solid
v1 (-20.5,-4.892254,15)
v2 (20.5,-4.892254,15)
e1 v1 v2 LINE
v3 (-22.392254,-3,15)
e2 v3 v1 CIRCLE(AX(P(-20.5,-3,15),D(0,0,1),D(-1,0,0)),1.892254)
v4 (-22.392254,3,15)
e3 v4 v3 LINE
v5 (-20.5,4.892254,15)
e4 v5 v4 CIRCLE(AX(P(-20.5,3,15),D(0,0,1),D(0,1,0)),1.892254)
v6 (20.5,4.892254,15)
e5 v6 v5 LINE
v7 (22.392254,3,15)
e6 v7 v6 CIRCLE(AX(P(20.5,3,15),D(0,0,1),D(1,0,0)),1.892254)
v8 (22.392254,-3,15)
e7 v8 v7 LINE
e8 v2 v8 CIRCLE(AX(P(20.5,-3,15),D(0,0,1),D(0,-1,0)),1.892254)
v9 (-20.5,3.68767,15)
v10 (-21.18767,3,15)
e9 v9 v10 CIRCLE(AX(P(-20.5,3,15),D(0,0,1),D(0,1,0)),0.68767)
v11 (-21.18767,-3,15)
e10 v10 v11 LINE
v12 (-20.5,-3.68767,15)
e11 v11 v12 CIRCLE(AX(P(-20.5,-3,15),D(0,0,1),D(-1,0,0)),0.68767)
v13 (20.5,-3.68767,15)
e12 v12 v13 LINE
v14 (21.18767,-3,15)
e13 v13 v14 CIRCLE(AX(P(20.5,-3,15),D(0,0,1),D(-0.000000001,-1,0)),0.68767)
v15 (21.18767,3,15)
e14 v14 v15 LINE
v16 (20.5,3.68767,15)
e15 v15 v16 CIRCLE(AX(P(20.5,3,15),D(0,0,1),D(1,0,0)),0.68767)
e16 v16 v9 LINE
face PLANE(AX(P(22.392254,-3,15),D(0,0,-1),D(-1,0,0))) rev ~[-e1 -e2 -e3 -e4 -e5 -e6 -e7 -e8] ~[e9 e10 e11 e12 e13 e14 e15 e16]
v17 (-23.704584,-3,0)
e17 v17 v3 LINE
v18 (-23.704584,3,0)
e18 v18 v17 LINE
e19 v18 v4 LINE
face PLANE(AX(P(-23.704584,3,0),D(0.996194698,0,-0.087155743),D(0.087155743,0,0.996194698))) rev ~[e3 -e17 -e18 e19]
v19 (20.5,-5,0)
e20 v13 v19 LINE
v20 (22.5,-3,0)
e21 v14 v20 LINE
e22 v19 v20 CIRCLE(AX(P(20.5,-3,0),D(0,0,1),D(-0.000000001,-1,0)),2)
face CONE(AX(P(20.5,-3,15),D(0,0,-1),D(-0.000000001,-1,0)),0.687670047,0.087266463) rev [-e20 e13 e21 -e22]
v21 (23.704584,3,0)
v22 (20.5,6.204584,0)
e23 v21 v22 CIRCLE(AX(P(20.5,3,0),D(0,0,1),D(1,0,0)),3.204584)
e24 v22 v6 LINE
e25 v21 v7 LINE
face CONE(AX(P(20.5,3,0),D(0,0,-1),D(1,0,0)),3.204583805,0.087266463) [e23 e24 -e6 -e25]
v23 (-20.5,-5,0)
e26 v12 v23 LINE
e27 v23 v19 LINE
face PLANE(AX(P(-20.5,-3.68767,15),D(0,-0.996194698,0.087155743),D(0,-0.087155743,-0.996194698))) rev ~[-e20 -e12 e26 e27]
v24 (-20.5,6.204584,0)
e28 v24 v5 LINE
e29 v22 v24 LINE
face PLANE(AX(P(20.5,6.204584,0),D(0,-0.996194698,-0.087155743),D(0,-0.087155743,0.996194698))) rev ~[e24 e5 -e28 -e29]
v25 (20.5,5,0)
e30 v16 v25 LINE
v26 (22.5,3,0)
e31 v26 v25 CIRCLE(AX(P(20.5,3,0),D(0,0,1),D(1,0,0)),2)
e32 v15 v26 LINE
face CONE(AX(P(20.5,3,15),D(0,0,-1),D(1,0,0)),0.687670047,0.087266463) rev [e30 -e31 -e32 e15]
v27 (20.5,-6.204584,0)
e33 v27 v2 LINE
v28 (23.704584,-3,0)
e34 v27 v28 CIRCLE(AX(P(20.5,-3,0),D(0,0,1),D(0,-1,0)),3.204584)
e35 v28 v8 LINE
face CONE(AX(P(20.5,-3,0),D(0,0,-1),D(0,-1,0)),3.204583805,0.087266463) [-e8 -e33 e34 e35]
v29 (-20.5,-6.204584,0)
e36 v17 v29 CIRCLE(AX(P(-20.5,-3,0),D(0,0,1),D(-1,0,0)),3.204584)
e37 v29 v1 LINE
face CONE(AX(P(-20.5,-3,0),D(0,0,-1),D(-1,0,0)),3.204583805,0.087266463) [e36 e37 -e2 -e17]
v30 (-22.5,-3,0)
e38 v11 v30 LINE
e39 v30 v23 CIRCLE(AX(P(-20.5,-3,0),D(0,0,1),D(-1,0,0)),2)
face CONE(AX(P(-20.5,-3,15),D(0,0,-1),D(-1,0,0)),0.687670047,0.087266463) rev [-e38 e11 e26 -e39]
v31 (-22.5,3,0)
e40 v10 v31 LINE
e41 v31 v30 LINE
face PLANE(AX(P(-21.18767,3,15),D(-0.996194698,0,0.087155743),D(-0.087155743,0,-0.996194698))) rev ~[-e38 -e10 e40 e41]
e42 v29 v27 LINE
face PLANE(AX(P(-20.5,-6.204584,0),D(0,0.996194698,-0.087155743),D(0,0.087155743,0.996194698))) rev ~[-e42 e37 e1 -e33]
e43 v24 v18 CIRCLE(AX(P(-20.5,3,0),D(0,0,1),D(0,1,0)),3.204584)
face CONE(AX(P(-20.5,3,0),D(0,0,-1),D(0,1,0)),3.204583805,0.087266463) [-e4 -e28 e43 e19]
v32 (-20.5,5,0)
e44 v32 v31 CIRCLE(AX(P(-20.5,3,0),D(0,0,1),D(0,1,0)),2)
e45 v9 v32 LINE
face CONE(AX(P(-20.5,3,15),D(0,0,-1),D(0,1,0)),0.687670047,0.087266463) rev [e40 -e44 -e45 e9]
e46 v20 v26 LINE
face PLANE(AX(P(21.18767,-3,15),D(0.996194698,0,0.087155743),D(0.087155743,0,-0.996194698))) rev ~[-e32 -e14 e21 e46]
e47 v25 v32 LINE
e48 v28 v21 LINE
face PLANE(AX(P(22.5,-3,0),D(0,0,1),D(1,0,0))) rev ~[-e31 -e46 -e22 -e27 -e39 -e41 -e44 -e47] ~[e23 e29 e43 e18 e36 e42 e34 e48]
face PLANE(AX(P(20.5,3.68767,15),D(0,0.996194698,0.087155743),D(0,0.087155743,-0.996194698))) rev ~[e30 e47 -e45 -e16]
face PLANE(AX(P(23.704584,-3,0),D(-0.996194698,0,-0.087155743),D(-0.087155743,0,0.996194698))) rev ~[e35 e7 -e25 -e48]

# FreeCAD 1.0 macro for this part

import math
import FreeCAD as App
import Part
import Sketcher

V = App.Vector
Q = App.Units.Quantity

doc = App.newDocument("Part")
body = doc.addObject("PartDesign::Body", "Body")

# Sketch on XZ plane
sketch1 = body.newObject("Sketcher::SketchObject", "Sketch")
sketch1.AttachmentSupport = (doc.getObject("XZ_Plane"), [""])
sketch1.MapMode = "FlatFace"
sketch1.AttachmentOffset = App.Placement(V(0, 0, 3), App.Rotation())
sketch1.addGeometry(Part.LineSegment(V(21.2, 15, 0), V(22.5, 0, 0)), False)
sketch1.addGeometry(Part.LineSegment(V(22.5, 0, 0), V(23.7, 0, 0)), False)
sketch1.addGeometry(Part.LineSegment(V(23.7, 0, 0), V(22.4, 15, 0)), False)
sketch1.addGeometry(Part.LineSegment(V(22.4, 15, 0), V(21.2, 15, 0)), False)
sketch1.addConstraint(Sketcher.Constraint("Coincident", 0, 2, 1, 1))
sketch1.addConstraint(Sketcher.Constraint("Coincident", 1, 2, 2, 1))
sketch1.addConstraint(Sketcher.Constraint("Coincident", 2, 2, 3, 1))
sketch1.addConstraint(Sketcher.Constraint("Coincident", 3, 2, 0, 1))
sketch1.addConstraint(Sketcher.Constraint("Horizontal", 1))
sketch1.addConstraint(Sketcher.Constraint("Horizontal", 3))
sketch1.addConstraint(Sketcher.Constraint("PointOnObject", 0, 2, -1))
sketch1.addConstraint(Sketcher.Constraint("Parallel", 0, 2))
sketch1.addConstraint(Sketcher.Constraint("Angle", 0, Q("-85 deg")))
sketch1.addConstraint(Sketcher.Constraint("DistanceY", -1, 1, 2, 2, 15.0))
sketch1.addConstraint(Sketcher.Constraint("DistanceX", -1, 1, 0, 2, 22.5))
sketch1.addConstraint(Sketcher.Constraint("DistanceX", 1, 1, 1, 2, 1.204584))

# Sketch on XY plane
sketch2 = body.newObject("Sketcher::SketchObject", "Sketch001")
sketch2.AttachmentSupport = (doc.getObject("XY_Plane"), [""])
sketch2.MapMode = "FlatFace"
sketch2.addGeometry(Part.LineSegment(V(22.5, -3, 0), V(22.5, 3, 0)), False)
sketch2.addGeometry(Part.ArcOfCircle(Part.Circle(V(20.5, 3, 0), V(0, 0, 1), 2), math.radians(0), math.radians(90)), False)
sketch2.addGeometry(Part.LineSegment(V(20.5, 5, 0), V(-20.5, 5, 0)), False)
sketch2.addGeometry(Part.ArcOfCircle(Part.Circle(V(-20.5, 3, 0), V(0, 0, 1), 2), math.radians(90), math.radians(180)), False)
sketch2.addGeometry(Part.LineSegment(V(-22.5, 3, 0), V(-22.5, -3, 0)), False)
sketch2.addGeometry(Part.ArcOfCircle(Part.Circle(V(-20.5, -3, 0), V(0, 0, 1), 2), math.radians(180), math.radians(270)), False)
sketch2.addGeometry(Part.LineSegment(V(-20.5, -5, 0), V(20.5, -5, 0)), False)
sketch2.addGeometry(Part.ArcOfCircle(Part.Circle(V(20.5, -3, 0), V(0, 0, 1), 2), math.radians(-90), math.radians(0)), False)
sketch2.addConstraint(Sketcher.Constraint("Tangent", 0, 2, 1, 1))
sketch2.addConstraint(Sketcher.Constraint("Tangent", 1, 2, 2, 1))
sketch2.addConstraint(Sketcher.Constraint("Tangent", 2, 2, 3, 1))
sketch2.addConstraint(Sketcher.Constraint("Tangent", 3, 2, 4, 1))
sketch2.addConstraint(Sketcher.Constraint("Tangent", 4, 2, 5, 1))
sketch2.addConstraint(Sketcher.Constraint("Tangent", 5, 2, 6, 1))
sketch2.addConstraint(Sketcher.Constraint("Tangent", 6, 2, 7, 1))
sketch2.addConstraint(Sketcher.Constraint("Tangent", 7, 2, 0, 1))
sketch2.addConstraint(Sketcher.Constraint("Vertical", 0))
sketch2.addConstraint(Sketcher.Constraint("Horizontal", 2))
sketch2.addConstraint(Sketcher.Constraint("Vertical", 4))
sketch2.addConstraint(Sketcher.Constraint("Horizontal", 6))
sketch2.addConstraint(Sketcher.Constraint("Equal", 1, 3))
sketch2.addConstraint(Sketcher.Constraint("Equal", 3, 5))
sketch2.addConstraint(Sketcher.Constraint("Equal", 5, 7))
sketch2.addConstraint(Sketcher.Constraint("Symmetric", 1, 3, 5, 3, -1, 1))
sketch2.addConstraint(Sketcher.Constraint("Radius", 1, 2.0))
sketch2.addConstraint(Sketcher.Constraint("DistanceX", 2, 2, 2, 1, 41.0))
sketch2.addConstraint(Sketcher.Constraint("DistanceY", 0, 1, 0, 2, 6.0))
doc.recompute()

additivepipe = body.newObject("PartDesign::AdditivePipe", "AdditivePipe")
additivepipe.Profile = sketch1
additivepipe.Spine = (sketch2, ["Edge1", "Edge2", "Edge3", "Edge4", "Edge5", "Edge6", "Edge7", "Edge8"])

doc.recompute()
